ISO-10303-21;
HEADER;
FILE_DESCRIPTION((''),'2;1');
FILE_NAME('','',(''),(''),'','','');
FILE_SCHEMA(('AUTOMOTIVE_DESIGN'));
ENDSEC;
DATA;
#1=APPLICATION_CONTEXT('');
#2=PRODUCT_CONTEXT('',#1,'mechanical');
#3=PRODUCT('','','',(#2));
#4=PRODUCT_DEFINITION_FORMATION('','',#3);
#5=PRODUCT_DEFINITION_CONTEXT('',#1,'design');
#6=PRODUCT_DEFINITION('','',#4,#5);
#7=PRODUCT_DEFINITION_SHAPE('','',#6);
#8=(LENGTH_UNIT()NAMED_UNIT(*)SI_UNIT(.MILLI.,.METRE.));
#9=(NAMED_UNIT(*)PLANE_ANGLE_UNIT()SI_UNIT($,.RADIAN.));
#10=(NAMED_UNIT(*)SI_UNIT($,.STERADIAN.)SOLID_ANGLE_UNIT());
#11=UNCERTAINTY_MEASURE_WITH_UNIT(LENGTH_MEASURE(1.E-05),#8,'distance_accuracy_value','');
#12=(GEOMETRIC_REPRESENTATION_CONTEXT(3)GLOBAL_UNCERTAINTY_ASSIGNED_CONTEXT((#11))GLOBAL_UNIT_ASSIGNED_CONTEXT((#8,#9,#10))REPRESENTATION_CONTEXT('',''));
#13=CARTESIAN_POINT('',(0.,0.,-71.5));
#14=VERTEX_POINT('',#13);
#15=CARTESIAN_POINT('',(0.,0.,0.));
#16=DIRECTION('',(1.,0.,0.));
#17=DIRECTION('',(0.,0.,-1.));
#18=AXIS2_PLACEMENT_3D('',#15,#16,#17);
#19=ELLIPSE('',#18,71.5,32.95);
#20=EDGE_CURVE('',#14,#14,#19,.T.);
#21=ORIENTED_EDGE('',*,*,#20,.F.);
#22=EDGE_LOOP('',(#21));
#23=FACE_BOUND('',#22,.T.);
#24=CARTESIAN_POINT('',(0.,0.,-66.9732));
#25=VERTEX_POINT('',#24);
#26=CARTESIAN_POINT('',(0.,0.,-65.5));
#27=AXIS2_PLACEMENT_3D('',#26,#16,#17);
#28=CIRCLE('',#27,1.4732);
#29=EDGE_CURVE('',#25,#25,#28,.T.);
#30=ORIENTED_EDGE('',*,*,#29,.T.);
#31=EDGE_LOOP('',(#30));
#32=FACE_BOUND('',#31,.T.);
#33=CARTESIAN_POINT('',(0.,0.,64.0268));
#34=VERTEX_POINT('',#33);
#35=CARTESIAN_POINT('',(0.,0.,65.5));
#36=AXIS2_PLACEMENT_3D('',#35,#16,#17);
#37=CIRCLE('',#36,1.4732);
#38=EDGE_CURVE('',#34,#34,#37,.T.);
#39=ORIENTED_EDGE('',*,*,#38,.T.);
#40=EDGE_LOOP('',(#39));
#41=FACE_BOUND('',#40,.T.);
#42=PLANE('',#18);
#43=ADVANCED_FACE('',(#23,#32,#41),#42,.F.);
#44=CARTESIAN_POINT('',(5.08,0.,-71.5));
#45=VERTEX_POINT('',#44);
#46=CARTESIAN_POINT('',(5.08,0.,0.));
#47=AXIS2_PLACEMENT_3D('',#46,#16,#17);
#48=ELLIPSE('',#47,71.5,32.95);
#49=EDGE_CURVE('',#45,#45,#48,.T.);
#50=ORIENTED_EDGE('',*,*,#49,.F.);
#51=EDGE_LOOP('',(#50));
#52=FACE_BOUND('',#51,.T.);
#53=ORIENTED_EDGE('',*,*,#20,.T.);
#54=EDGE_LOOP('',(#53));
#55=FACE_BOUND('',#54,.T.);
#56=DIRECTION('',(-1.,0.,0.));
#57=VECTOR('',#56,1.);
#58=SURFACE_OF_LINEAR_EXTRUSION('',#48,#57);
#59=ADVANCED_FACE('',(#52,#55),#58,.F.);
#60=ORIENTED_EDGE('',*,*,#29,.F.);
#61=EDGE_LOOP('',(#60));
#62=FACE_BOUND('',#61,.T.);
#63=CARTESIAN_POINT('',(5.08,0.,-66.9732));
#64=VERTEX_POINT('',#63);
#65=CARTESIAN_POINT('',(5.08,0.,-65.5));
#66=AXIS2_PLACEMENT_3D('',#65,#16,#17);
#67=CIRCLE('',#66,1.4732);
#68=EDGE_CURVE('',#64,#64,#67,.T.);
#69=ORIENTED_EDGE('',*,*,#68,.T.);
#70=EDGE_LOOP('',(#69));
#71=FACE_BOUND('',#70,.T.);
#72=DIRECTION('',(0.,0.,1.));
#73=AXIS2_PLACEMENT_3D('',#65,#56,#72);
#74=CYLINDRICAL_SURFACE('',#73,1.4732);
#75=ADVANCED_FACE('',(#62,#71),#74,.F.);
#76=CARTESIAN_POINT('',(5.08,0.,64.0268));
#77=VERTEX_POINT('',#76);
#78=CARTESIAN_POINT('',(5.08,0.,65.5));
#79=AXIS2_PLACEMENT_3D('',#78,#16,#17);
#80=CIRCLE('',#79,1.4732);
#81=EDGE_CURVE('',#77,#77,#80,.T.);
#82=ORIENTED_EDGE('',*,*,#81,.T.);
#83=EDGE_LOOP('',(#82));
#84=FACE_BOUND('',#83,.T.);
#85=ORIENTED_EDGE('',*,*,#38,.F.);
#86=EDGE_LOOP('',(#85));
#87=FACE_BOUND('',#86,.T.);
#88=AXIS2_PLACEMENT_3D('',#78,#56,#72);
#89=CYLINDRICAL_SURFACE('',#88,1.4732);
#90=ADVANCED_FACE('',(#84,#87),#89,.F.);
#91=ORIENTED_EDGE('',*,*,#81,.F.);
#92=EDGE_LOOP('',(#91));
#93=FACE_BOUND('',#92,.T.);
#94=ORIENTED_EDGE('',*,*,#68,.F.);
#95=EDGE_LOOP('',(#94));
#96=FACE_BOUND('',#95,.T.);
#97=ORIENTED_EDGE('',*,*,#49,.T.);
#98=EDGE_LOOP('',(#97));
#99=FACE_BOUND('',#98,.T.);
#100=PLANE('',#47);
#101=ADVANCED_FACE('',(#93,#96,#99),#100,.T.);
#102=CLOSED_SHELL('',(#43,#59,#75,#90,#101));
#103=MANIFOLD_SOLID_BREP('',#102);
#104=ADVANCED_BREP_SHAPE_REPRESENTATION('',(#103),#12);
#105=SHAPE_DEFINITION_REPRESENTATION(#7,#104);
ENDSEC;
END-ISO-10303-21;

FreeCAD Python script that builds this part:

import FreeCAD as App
import Part
import Sketcher

V = App.Vector
Q = App.Units.Quantity

doc = App.newDocument("Part")
body = doc.addObject("PartDesign::Body", "Body")

sketch1 = doc.addObject("Sketcher::SketchObject", "Sketch")
body.addObject(sketch1)
sketch1.AttachmentSupport = (doc.YZ_Plane, [""])
sketch1.MapMode = "FlatFace"
sketch1.addGeometry(Part.Ellipse(V(0, -71.5, 0), V(32.95, 0, 0), V(0, 0, 0)), False)
sketch1.addGeometry(Part.Circle(V(0, 65.5, 0), V(0, 0, 1), 1.4732), False)
sketch1.addGeometry(Part.Circle(V(0, -65.5, 0), V(0, 0, 1), 1.4732), False)
sketch1.addConstraint(Sketcher.Constraint("Block", 0))
sketch1.addConstraint(Sketcher.Constraint("Equal", 1, 2))
sketch1.addConstraint(Sketcher.Constraint("Symmetric", 1, 3, 2, 3, -1, 1))
sketch1.addConstraint(Sketcher.Constraint("PointOnObject", 1, 3, -2))
sketch1.addConstraint(Sketcher.Constraint("Diameter", 1, Q("0.116 in")))
sketch1.addConstraint(Sketcher.Constraint("DistanceY", -1, 1, 1, 3, Q("65.5 mm")))
pad1 = doc.addObject("PartDesign::Pad", "Pad")
body.addObject(pad1)
pad1.Profile = sketch1
pad1.Length = Q("0.2 in")

doc.recompute()
